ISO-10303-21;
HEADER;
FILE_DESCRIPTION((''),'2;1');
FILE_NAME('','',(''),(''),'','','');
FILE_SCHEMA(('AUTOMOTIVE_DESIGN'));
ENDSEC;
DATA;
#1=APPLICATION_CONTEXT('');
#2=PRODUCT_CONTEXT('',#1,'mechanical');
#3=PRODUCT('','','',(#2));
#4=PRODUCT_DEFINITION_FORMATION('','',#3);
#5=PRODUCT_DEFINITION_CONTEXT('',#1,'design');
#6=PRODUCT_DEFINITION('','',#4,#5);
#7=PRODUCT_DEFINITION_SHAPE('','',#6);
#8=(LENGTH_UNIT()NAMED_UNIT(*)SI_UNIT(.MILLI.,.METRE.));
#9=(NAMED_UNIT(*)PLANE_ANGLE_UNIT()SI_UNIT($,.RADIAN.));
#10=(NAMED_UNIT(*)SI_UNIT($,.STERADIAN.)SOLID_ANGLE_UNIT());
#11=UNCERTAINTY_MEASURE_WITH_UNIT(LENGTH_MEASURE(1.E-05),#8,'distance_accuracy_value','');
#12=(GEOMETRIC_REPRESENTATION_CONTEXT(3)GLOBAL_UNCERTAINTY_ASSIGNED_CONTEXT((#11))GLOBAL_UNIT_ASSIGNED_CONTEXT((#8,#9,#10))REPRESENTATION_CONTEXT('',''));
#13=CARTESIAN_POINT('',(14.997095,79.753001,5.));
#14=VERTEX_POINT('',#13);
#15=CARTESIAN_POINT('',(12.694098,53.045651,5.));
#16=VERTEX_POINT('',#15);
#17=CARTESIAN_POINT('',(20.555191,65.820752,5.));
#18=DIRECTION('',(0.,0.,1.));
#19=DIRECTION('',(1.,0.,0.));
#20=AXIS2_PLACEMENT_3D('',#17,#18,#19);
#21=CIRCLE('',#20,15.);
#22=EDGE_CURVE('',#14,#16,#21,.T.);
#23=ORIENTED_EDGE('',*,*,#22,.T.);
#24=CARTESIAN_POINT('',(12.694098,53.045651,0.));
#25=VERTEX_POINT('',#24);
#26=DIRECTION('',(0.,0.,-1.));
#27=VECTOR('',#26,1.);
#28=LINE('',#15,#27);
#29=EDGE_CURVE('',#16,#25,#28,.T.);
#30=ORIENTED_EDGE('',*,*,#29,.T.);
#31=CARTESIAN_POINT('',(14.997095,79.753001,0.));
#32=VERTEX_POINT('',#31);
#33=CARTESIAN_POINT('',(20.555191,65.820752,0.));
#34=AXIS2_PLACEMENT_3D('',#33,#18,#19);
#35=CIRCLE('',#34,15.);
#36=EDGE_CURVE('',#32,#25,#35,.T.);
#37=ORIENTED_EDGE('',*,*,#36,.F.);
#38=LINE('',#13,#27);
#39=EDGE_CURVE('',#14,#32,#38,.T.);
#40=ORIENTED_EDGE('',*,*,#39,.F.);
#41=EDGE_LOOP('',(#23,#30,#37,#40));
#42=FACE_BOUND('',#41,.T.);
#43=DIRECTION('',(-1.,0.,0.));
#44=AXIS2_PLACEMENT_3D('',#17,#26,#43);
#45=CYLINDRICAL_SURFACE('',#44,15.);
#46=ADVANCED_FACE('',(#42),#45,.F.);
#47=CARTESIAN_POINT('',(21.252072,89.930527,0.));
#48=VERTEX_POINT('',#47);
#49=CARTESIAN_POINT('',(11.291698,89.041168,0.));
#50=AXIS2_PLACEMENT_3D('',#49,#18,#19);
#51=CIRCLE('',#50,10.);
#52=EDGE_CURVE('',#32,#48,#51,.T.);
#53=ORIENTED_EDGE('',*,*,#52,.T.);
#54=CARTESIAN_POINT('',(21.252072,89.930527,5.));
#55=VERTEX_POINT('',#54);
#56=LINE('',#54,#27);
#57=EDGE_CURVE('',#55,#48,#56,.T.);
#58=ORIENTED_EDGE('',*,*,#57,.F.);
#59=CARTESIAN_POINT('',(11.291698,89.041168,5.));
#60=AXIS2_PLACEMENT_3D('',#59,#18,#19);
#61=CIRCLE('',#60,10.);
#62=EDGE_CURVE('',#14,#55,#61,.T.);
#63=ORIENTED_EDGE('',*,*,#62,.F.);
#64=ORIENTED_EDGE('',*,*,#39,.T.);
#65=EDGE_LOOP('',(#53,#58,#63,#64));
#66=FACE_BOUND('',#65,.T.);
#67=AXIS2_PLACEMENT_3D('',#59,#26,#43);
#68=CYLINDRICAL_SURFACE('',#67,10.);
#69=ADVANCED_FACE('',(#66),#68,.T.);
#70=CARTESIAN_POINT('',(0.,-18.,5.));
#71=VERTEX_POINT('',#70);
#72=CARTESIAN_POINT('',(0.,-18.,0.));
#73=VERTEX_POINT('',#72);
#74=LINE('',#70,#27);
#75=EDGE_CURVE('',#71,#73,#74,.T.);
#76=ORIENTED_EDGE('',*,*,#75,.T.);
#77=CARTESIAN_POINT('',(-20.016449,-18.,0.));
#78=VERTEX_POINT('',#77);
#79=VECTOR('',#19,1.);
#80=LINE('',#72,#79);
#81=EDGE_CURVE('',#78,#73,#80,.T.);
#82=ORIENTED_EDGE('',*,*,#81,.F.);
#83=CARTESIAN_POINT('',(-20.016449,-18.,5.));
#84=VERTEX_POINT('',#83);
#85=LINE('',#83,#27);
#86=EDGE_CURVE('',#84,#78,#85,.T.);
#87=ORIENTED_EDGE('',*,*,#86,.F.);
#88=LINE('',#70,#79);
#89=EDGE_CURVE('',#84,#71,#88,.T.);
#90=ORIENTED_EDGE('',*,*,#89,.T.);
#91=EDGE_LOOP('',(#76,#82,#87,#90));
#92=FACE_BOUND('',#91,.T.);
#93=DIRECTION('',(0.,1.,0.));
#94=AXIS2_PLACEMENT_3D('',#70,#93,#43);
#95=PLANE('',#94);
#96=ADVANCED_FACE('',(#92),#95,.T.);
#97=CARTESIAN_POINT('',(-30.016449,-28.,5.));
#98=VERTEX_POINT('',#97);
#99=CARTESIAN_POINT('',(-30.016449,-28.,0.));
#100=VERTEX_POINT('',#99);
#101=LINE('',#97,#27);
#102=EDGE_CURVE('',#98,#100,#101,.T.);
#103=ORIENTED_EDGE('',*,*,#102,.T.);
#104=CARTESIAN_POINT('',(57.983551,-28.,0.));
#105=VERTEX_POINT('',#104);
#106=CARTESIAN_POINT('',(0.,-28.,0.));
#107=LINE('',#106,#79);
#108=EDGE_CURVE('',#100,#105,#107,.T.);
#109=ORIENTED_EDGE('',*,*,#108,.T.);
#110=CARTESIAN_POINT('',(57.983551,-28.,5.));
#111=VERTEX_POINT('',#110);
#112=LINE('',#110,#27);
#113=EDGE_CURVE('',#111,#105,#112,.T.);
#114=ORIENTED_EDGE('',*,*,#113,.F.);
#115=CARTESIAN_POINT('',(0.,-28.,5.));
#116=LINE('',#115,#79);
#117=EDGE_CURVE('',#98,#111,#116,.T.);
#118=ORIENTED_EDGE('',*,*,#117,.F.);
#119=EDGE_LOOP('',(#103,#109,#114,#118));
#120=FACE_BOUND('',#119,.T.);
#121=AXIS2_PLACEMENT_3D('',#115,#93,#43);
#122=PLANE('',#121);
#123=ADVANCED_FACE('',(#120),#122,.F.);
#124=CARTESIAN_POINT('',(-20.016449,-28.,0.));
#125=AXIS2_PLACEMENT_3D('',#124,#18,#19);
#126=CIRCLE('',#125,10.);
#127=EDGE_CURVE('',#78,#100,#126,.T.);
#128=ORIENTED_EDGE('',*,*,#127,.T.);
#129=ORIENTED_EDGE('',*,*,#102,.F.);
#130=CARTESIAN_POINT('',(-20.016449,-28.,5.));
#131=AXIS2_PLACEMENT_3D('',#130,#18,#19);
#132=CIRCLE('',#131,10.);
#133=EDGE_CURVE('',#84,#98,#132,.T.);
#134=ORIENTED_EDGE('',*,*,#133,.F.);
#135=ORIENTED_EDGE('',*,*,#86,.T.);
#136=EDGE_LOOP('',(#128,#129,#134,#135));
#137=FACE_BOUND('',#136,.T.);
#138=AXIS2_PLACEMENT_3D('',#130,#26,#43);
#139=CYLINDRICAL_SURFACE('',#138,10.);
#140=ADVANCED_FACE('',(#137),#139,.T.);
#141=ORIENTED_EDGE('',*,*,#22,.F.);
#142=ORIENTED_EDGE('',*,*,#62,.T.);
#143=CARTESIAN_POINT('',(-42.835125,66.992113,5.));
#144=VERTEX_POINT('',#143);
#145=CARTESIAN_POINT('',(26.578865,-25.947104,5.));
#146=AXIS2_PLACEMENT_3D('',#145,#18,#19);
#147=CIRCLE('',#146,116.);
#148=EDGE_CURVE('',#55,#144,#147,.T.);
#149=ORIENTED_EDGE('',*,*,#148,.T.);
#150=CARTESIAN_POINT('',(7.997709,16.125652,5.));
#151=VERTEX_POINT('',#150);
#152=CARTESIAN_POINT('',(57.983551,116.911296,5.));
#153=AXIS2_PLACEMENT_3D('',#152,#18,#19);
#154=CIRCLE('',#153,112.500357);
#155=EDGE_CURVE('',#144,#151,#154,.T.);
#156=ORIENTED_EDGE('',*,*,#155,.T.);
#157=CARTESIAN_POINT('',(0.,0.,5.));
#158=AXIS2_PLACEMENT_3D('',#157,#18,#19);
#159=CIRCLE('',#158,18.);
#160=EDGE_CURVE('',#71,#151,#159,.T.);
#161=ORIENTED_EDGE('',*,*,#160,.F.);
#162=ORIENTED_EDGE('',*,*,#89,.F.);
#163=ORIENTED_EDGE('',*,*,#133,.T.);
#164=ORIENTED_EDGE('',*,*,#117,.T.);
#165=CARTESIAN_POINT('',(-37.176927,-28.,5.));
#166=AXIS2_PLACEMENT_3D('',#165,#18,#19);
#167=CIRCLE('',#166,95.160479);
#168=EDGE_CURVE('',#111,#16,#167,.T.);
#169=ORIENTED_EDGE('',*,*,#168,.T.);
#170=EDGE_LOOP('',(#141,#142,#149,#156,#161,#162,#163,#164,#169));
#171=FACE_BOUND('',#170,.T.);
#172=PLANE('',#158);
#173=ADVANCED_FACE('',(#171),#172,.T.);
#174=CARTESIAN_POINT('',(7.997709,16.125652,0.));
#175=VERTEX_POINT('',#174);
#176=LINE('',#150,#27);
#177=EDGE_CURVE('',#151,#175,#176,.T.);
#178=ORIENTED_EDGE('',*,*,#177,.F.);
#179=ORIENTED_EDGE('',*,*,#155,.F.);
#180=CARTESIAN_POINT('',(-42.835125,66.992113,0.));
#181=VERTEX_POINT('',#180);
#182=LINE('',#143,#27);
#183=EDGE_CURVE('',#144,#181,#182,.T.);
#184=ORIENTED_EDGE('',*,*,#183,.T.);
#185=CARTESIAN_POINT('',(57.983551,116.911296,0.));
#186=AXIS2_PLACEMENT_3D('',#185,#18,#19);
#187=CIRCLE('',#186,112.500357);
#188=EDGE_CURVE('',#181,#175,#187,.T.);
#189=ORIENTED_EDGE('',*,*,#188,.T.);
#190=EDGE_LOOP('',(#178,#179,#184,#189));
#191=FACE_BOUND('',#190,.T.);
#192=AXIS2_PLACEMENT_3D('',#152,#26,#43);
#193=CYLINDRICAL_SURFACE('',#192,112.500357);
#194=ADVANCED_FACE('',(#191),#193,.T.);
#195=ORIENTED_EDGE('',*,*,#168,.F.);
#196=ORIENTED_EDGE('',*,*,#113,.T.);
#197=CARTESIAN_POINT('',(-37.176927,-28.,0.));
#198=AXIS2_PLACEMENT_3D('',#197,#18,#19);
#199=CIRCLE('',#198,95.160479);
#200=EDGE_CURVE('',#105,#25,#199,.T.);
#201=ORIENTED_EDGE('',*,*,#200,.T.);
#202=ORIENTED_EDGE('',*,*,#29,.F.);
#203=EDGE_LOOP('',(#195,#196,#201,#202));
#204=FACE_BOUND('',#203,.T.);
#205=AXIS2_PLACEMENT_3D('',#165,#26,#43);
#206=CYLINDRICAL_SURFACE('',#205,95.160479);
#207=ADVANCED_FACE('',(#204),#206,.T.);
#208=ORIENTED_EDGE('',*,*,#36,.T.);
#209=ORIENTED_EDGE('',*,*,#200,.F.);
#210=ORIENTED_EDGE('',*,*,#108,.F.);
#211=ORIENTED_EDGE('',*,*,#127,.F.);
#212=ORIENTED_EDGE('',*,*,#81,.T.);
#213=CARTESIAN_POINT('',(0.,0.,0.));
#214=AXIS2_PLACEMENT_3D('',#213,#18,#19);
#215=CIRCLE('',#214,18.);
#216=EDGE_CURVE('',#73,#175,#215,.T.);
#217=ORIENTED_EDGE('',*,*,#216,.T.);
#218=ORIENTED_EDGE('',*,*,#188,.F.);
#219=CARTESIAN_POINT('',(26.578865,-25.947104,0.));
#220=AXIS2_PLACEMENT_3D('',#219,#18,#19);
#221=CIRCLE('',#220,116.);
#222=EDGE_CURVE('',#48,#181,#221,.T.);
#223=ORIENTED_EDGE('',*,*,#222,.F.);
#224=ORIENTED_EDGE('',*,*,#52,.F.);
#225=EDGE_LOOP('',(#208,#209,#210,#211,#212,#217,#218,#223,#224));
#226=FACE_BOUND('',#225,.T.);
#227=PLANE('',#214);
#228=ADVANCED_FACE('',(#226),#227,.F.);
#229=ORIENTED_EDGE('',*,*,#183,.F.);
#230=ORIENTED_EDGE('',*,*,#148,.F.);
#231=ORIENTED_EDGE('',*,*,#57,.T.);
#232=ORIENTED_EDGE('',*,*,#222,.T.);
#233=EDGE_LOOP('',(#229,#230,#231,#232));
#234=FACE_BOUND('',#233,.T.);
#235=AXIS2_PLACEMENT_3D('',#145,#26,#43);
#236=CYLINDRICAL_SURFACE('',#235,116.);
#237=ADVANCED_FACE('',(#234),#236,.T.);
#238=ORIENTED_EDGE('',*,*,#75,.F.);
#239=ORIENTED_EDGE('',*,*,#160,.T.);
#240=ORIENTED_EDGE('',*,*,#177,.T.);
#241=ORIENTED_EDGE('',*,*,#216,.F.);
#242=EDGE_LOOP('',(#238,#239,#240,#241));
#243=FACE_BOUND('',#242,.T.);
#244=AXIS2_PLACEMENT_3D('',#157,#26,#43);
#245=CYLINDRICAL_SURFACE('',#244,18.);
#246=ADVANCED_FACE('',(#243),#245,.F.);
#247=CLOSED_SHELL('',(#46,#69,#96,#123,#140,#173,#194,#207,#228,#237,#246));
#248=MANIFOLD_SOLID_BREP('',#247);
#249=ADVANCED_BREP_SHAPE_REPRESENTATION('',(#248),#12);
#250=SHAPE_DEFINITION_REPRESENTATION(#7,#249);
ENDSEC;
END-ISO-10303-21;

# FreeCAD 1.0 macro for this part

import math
import FreeCAD as App
import Part
import Sketcher
Q = App.Units.Quantity

doc = App.newDocument("Part")
body = doc.addObject("PartDesign::Body", "Body")

# Sketch on XY plane
sketch1 = body.newObject("Sketcher::SketchObject", "Sketch")
sketch1.AttachmentSupport = (doc.getObject("XY_Plane"), [""])
sketch1.MapMode = "FlatFace"
sketch1.addGeometry([
    Part.ArcOfCircle(Part.Circle(App.Vector(11, 89, 0), App.Vector(0, 0, 1), 10), math.radians(-68), math.radians(5)),  # 0
    Part.ArcOfCircle(Part.Circle(App.Vector(27, -26, 0), App.Vector(0, 0, 1), 116), math.radians(93), math.radians(127)),  # 1
    Part.ArcOfCircle(Part.Circle(App.Vector(58, 117, 0), App.Vector(0, 0, 1), 113), math.radians(-154), math.radians(-116)),  # 2
    Part.ArcOfCircle(Part.Circle(App.Vector(0, 0, 0), App.Vector(0, 0, 1), 18), math.radians(-90), math.radians(64)),  # 3
    Part.LineSegment(App.Vector(0, -18, 0), App.Vector(-20, -18, 0)),  # 4
    Part.ArcOfCircle(Part.Circle(App.Vector(-20, -28, 0), App.Vector(0, 0, 1), 10), math.radians(90), math.radians(180)),  # 5
    Part.LineSegment(App.Vector(-30, -28, 0), App.Vector(58, -28, 0)),  # 6
    Part.ArcOfCircle(Part.Circle(App.Vector(-37, -28, 0), App.Vector(0, 0, 1), 95), math.radians(0), math.radians(58)),  # 7
    Part.ArcOfCircle(Part.Circle(App.Vector(21, 66, 0), App.Vector(0, 0, 1), 15), math.radians(112), math.radians(238)),  # 8
], False)
sketch1.addConstraint([
    Sketcher.Constraint("Coincident", 0, 2, 1, 1),
    Sketcher.Constraint("Coincident", 1, 2, 2, 1),
    Sketcher.Constraint("Tangent", 2, 2, 3, 2),
    Sketcher.Constraint("Tangent", 3, 1, 4, 1),
    Sketcher.Constraint("Tangent", 4, 2, 5, 1),
    Sketcher.Constraint("Coincident", 5, 2, 6, 1),
    Sketcher.Constraint("Coincident", 6, 2, 7, 1),
    Sketcher.Constraint("Tangent", 7, 2, 8, 2),
    Sketcher.Constraint("Tangent", 8, 1, 0, 1),
    Sketcher.Constraint("Horizontal", 4),
    Sketcher.Constraint("Horizontal", 6),
    Sketcher.Constraint("Coincident", 3, 3, -1, 1),
    Sketcher.Constraint("Equal", 0, 5),
    Sketcher.Constraint("Horizontal", 5, 3, 7, 3),
    Sketcher.Constraint("Horizontal", 7, 3, 5, 2),
    Sketcher.Constraint("Vertical", 2, 3, 6, 2),
    Sketcher.Constraint("Radius", 0, Q("10 mm")),
    Sketcher.Constraint("Radius", 1, Q("116 mm")),
    Sketcher.Constraint("Radius", 3, Q("18 mm")),
    Sketcher.Constraint("Radius", 8, Q("15 mm")),
    Sketcher.Constraint("DistanceX", 6, 1, 6, 2, Q("88 mm")),
    Sketcher.Constraint("Radius", 7, Q("95.160479 mm")),
    Sketcher.Constraint("DistanceY", 2, 2, 7, 2, Q("36.919999 mm")),
    Sketcher.Constraint("DistanceY", -1, 1, 8, 1, Q("79.753001 mm")),
    Sketcher.Constraint("Radius", 2, Q("112.500357 mm")),
    Sketcher.Constraint("DistanceX", 4, 2, 4, 1, Q("20.016449 mm")),
    Sketcher.Constraint("DistanceY", 1, 3, 2, 3, Q("142.858399 mm")),
    Sketcher.Constraint("DistanceX", 1, 2, 7, 3, Q("5.658198 mm")),
])
pad1 = body.newObject("PartDesign::Pad", "Pad")
pad1.Profile = sketch1
pad1.Length = 5

doc.recompute()
